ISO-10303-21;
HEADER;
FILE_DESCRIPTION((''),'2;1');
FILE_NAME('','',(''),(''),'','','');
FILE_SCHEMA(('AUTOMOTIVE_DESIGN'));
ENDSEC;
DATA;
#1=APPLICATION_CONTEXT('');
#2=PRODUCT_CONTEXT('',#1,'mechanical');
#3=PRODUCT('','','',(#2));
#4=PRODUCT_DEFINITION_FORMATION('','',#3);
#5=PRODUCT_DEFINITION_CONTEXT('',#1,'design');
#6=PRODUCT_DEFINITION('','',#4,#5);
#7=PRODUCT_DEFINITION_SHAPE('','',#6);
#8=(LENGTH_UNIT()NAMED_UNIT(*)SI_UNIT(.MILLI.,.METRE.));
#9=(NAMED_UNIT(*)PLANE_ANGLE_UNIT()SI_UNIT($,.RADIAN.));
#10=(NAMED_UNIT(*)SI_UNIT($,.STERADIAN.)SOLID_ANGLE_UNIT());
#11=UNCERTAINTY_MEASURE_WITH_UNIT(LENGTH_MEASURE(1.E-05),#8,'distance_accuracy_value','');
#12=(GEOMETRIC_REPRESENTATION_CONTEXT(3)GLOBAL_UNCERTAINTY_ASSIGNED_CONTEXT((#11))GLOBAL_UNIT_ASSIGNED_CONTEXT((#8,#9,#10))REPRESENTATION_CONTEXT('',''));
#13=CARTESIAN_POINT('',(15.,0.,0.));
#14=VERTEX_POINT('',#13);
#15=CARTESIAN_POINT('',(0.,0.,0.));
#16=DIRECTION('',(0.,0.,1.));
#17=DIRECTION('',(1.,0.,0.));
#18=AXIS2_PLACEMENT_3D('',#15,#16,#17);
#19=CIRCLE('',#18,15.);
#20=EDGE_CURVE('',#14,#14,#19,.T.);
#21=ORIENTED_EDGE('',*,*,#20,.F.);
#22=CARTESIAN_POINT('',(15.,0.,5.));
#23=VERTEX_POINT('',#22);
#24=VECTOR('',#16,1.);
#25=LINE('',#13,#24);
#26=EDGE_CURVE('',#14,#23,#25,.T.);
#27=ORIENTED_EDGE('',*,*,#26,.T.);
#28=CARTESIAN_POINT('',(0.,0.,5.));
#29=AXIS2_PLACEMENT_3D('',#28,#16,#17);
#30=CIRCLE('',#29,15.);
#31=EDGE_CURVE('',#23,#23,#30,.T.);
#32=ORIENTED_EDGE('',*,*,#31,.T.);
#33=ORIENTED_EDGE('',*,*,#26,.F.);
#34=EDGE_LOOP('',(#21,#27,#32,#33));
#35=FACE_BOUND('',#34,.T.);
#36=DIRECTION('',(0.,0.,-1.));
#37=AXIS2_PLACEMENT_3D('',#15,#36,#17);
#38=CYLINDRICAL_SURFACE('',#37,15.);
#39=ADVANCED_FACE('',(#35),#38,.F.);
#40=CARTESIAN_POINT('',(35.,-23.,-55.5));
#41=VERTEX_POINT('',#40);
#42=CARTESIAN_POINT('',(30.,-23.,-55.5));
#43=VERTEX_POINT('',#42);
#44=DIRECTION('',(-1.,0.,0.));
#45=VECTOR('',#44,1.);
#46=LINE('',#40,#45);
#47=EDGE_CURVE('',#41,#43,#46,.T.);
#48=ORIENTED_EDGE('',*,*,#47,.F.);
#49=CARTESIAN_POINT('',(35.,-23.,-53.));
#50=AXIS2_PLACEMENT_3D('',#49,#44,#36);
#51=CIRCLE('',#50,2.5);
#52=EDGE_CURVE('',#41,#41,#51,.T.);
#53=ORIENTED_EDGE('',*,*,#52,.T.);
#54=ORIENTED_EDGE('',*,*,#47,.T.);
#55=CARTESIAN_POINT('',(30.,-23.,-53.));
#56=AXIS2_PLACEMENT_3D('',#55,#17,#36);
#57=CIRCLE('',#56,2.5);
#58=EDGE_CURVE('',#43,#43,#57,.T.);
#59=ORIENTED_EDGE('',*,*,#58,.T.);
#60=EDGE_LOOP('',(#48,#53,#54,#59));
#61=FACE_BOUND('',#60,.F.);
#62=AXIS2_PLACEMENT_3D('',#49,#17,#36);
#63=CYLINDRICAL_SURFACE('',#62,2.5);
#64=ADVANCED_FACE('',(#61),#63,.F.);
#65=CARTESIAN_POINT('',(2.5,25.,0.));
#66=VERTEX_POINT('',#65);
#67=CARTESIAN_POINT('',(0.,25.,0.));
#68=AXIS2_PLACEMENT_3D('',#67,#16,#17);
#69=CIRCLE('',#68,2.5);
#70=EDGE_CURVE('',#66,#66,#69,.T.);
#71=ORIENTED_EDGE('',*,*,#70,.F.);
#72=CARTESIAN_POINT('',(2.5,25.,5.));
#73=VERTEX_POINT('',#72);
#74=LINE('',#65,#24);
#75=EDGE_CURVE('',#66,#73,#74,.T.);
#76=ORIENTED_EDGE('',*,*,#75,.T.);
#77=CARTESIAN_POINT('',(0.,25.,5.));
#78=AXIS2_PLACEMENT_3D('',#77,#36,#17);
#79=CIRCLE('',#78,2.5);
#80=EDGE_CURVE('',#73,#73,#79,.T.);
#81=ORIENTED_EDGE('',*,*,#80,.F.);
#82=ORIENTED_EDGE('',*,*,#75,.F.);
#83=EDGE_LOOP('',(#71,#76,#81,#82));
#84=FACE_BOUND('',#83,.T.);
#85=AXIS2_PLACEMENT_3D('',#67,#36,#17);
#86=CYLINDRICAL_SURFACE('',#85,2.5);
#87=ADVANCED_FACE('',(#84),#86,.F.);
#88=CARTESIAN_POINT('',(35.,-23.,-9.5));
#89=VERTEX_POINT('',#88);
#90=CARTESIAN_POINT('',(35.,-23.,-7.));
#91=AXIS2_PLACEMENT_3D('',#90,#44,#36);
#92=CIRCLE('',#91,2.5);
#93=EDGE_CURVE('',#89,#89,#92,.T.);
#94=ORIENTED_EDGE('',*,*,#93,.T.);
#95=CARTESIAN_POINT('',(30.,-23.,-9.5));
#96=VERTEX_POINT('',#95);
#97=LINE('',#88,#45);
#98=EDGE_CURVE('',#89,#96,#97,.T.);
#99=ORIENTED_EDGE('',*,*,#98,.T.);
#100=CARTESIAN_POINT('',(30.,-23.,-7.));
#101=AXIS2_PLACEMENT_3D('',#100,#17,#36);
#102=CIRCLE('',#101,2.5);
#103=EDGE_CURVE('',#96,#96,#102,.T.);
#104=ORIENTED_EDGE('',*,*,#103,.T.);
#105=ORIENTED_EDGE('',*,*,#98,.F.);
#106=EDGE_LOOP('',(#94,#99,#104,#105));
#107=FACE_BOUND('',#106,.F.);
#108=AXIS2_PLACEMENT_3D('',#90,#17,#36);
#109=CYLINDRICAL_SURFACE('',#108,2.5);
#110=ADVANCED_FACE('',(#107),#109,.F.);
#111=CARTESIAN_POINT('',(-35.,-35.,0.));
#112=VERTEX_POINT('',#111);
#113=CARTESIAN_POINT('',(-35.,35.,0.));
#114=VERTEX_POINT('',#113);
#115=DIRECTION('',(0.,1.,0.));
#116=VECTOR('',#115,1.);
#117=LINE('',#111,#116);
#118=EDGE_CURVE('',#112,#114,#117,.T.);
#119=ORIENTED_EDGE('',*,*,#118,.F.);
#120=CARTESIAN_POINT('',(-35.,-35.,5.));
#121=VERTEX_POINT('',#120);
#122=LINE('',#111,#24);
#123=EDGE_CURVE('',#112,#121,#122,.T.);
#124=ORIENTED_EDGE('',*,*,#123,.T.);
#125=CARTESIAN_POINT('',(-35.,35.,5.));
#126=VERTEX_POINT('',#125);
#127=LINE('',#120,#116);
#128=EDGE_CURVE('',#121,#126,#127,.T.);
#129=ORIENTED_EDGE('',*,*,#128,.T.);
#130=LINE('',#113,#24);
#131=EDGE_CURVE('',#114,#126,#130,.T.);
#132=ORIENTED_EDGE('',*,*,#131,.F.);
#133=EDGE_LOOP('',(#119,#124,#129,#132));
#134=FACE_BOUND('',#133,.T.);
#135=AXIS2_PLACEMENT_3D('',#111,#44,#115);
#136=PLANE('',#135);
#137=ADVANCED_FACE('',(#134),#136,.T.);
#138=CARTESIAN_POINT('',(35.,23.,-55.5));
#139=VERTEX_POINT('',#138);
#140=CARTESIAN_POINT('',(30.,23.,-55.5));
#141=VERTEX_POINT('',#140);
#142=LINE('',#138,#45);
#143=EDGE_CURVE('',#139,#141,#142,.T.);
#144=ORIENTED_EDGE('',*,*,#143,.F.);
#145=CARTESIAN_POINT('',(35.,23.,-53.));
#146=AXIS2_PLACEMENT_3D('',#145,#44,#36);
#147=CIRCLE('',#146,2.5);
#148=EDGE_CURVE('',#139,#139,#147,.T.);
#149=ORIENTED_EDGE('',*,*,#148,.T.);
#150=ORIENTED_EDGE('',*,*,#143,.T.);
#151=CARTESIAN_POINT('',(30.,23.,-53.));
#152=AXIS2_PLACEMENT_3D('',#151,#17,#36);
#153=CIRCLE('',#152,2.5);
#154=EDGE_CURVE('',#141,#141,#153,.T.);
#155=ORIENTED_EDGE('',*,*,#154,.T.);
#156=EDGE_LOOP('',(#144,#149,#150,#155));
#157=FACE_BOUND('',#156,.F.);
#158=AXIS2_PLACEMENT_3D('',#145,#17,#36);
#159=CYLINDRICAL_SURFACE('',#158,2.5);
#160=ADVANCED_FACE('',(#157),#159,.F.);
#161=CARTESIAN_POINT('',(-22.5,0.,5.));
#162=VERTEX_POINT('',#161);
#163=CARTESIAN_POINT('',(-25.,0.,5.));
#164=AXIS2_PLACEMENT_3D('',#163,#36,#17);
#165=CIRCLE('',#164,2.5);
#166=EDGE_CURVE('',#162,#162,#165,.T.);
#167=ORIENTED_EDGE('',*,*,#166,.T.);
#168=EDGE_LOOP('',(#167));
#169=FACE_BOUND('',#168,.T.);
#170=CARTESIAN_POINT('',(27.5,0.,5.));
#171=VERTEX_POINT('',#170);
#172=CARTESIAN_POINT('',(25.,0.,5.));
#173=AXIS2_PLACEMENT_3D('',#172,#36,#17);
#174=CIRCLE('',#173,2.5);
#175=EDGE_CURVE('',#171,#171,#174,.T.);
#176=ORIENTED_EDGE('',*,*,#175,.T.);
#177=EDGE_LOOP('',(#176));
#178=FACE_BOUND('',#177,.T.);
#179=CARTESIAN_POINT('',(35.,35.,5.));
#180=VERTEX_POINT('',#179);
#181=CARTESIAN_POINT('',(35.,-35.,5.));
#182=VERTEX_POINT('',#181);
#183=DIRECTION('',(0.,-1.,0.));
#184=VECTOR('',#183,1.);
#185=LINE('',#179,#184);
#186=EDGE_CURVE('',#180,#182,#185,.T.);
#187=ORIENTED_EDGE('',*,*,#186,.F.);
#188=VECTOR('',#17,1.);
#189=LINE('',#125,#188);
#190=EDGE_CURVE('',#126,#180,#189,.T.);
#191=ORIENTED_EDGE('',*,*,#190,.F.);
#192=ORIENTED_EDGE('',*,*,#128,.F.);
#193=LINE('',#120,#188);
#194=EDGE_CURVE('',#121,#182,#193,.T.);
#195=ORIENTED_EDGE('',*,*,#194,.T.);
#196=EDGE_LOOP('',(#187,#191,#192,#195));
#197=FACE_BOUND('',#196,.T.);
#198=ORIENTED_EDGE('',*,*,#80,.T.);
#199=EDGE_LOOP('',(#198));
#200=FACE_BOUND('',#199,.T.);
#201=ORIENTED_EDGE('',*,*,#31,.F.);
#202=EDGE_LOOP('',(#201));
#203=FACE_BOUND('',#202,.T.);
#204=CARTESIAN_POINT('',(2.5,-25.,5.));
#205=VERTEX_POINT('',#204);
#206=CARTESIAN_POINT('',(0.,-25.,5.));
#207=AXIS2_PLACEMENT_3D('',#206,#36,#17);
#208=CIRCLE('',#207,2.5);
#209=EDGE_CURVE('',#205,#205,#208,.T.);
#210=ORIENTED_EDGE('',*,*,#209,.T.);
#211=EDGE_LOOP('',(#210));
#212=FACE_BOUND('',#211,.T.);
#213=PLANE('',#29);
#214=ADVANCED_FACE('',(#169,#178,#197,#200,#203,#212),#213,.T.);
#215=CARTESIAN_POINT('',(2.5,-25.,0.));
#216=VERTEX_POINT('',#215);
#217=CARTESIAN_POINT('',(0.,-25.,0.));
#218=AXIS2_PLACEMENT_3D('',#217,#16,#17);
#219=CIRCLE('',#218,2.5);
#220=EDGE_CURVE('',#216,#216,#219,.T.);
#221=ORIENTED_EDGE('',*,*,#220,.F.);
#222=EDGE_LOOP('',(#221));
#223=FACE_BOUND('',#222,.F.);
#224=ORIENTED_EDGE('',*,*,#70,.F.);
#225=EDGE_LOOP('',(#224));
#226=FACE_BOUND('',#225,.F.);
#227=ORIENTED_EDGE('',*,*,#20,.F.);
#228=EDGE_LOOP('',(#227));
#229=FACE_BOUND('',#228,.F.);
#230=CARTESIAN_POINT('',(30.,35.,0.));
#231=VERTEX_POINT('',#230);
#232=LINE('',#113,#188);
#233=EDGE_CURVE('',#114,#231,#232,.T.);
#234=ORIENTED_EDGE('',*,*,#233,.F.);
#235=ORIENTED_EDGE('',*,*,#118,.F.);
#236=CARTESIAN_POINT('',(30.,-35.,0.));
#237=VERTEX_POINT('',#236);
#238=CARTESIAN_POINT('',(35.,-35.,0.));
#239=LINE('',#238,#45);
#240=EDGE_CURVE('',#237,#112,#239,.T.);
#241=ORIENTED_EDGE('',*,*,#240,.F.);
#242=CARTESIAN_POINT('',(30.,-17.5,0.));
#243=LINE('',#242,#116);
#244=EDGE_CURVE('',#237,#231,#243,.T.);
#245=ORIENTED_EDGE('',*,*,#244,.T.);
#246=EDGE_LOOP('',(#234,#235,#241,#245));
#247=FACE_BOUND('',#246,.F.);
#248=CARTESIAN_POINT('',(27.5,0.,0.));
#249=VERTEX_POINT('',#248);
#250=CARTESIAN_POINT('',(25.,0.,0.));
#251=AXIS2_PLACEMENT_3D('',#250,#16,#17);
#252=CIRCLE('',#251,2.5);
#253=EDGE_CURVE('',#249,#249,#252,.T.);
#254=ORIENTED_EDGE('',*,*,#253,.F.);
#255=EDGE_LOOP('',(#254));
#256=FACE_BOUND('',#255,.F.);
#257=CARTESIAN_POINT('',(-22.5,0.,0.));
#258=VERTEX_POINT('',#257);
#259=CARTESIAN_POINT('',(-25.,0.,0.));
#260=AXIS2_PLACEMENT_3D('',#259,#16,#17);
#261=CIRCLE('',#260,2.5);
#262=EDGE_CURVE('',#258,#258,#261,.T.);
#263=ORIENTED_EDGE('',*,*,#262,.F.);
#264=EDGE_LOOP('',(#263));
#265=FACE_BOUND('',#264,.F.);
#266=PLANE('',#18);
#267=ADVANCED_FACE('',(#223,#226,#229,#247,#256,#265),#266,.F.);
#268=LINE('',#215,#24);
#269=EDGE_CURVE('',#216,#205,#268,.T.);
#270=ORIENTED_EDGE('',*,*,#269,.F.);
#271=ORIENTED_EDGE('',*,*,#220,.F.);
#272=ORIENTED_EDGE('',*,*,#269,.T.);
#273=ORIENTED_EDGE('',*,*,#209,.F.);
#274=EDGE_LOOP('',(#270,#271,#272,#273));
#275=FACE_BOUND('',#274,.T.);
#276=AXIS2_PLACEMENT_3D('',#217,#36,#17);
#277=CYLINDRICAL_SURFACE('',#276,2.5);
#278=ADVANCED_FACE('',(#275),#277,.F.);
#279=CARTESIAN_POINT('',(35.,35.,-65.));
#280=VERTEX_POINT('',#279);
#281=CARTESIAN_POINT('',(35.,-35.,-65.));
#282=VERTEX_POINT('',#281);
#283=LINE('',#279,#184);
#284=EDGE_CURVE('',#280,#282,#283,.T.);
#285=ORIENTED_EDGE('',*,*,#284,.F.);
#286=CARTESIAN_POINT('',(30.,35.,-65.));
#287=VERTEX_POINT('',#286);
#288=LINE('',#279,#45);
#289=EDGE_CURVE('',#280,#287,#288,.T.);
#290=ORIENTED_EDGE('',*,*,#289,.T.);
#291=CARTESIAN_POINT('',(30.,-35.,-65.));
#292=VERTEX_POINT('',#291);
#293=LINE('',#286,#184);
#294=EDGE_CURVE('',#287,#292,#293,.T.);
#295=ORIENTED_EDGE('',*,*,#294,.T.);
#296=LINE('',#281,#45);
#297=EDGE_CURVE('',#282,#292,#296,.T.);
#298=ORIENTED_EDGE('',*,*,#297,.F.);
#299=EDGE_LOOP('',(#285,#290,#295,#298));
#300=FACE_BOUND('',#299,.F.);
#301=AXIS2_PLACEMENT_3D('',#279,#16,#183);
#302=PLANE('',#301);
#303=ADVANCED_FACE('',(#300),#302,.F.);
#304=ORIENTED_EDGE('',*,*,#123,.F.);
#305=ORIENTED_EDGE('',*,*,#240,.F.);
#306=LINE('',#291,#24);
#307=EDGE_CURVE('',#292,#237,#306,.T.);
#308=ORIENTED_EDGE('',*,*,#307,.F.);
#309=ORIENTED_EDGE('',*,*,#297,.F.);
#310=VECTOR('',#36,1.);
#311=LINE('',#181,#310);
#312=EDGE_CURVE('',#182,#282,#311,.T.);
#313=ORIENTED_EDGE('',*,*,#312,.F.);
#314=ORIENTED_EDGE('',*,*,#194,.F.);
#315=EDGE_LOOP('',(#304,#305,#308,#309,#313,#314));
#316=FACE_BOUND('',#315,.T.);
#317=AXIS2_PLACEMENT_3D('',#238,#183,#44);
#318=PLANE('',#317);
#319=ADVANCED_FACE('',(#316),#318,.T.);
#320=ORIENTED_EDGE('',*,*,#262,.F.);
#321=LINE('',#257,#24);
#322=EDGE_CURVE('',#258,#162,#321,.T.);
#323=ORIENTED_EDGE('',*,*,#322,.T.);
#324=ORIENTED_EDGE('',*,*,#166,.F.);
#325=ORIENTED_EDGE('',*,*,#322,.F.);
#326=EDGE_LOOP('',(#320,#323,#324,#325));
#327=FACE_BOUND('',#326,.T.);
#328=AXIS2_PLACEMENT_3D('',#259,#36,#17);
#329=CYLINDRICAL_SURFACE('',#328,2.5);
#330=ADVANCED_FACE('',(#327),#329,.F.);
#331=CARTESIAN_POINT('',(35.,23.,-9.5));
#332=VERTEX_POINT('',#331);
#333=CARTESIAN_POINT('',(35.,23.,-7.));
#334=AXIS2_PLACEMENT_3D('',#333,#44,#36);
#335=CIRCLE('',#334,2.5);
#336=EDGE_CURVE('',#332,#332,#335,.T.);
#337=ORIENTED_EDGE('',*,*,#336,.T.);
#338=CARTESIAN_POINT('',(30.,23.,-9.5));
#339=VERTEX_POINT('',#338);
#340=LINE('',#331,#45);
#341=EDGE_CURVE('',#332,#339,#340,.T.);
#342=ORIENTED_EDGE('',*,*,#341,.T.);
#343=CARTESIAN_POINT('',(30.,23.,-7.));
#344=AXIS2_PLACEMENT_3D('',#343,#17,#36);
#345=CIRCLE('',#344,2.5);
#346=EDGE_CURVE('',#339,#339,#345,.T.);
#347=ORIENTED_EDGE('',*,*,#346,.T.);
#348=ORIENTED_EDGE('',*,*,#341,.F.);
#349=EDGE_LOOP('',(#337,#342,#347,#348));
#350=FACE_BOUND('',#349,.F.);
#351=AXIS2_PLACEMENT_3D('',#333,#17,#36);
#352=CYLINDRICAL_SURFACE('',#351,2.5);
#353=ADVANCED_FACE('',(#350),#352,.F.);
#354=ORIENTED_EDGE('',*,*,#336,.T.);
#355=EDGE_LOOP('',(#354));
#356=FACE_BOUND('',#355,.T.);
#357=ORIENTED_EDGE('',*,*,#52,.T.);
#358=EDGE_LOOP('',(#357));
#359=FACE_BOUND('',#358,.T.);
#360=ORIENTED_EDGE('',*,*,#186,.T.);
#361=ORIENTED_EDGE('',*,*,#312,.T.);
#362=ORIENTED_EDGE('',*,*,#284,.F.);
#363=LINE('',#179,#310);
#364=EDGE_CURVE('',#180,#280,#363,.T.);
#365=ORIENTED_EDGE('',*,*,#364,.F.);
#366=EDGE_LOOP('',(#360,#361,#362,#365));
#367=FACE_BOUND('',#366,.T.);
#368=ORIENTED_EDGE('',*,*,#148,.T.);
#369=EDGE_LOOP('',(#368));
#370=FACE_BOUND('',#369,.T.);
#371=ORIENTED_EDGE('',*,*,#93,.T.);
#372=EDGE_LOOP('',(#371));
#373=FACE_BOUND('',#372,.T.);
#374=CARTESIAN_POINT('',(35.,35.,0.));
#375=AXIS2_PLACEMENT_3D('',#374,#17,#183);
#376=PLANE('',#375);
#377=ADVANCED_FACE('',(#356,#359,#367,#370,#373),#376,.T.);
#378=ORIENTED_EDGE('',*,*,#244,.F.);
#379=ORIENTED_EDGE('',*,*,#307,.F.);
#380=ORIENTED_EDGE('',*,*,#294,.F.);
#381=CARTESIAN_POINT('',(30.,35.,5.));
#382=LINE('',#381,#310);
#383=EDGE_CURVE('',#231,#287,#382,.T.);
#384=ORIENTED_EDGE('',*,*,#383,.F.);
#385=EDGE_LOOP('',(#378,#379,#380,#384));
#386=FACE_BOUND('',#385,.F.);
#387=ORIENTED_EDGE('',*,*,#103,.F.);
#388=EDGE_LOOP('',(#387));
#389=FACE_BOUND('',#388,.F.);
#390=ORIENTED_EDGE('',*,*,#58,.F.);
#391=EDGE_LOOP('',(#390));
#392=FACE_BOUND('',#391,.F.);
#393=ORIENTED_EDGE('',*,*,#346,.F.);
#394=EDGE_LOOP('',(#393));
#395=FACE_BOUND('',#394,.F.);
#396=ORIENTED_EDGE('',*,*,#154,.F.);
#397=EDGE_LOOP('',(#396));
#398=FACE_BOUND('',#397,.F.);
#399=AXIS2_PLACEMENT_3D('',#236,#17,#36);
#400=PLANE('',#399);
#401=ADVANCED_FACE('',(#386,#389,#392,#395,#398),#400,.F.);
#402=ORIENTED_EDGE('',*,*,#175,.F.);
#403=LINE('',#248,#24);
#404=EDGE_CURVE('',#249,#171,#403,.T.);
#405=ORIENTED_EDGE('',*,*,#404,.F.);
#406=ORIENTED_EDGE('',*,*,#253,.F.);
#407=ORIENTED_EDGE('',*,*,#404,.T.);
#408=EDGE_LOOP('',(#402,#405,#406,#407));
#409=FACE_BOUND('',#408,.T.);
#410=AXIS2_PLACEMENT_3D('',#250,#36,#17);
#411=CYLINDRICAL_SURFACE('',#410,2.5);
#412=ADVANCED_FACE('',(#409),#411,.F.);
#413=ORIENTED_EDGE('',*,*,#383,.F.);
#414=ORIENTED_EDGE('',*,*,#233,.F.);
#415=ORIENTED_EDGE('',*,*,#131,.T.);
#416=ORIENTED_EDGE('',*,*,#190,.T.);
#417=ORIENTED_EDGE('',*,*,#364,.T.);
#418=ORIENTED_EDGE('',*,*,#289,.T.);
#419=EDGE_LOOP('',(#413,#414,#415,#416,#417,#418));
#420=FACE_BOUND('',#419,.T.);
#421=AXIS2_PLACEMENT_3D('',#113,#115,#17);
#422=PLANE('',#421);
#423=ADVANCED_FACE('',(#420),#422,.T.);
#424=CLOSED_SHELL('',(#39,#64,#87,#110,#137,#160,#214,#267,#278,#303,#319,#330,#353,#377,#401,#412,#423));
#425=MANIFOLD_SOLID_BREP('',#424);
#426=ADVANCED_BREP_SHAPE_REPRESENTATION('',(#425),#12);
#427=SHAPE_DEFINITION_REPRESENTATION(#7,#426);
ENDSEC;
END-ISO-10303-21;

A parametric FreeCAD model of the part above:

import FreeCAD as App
import Part
import Sketcher

V = App.Vector


def add_polygon(sketch, points):
    """Adds a closed chain of lines whose ends are joined by coincident constraints."""
    first, n = sketch.GeometryCount, len(points)
    for a, b in zip(points, points[1:] + points[:1]):
        sketch.addGeometry(Part.LineSegment(App.Vector(*a, 0), App.Vector(*b, 0)), False)
    for i in range(n):
        sketch.addConstraint(Sketcher.Constraint("Coincident", first + i, 2, first + (i + 1) % n, 1))

doc = App.newDocument("Part")
body = doc.addObject("PartDesign::Body", "Body")

# Sketch on XY plane
sketch1 = body.newObject("Sketcher::SketchObject", "Sketch")
sketch1.AttachmentSupport = (doc.getObject("XY_Plane"), [""])
sketch1.MapMode = "FlatFace"
add_polygon(sketch1, [(35, 35), (-35, 35), (-35, -35), (35, -35)])  # lines 0-3
sketch1.addGeometry(Part.Circle(V(0, 25, 0), V(0, 0, 1), 2.5), False)  # 4
sketch1.addGeometry(Part.Circle(V(-25, 0, 0), V(0, 0, 1), 2.5), False)  # 5
sketch1.addGeometry(Part.Circle(V(0, -25, 0), V(0, 0, 1), 2.5), False)  # 6
sketch1.addGeometry(Part.Circle(V(25, 0, 0), V(0, 0, 1), 2.5), False)  # 7
sketch1.addGeometry(Part.Circle(V(0, 0, 0), V(0, 0, 1), 15), False)  # 8
sketch1.addConstraint([
    Sketcher.Constraint("Horizontal", 0),
    Sketcher.Constraint("Vertical", 1),
    Sketcher.Constraint("Horizontal", 2),
    Sketcher.Constraint("Vertical", 3),
    Sketcher.Constraint("Coincident", 8, 3, -1, 1),
    Sketcher.Constraint("Equal", 4, 5),
    Sketcher.Constraint("Equal", 5, 6),
    Sketcher.Constraint("Equal", 6, 7),
    Sketcher.Constraint("Symmetric", 4, 3, 6, 3, -1, 1),
    Sketcher.Constraint("Symmetric", 5, 3, 7, 3, -1, 1),
    Sketcher.Constraint("Symmetric", 0, 2, 2, 2, -1, 1),
    Sketcher.Constraint("PointOnObject", 4, 3, -2),
    Sketcher.Constraint("PointOnObject", 5, 3, -1),
    Sketcher.Constraint("Equal", 2, 1),
    Sketcher.Constraint("Diameter", 4, 5.0),
    Sketcher.Constraint("Diameter", 8, 30.0),
    Sketcher.Constraint("DistanceX", 0, 2, 0, 1, 70.0),
    Sketcher.Constraint("DistanceY", 6, 3, 4, 3, 50.0),
    Sketcher.Constraint("DistanceX", 5, 3, 7, 3, 50.0),
])
pad1 = body.newObject("PartDesign::Pad", "Pad")
pad1.Profile = sketch1
pad1.Length = 5

# Sketch on YZ plane
sketch2 = body.newObject("Sketcher::SketchObject", "Sketch001")
sketch2.AttachmentSupport = (doc.getObject("YZ_Plane"), [""])
sketch2.MapMode = "FlatFace"
sketch2.AttachmentOffset = App.Placement(V(0, 0, 35), App.Rotation())
add_polygon(sketch2, [(35, 5), (-35, 5), (-35, -65), (35, -65)])  # lines 0-3
sketch2.addConstraint([
    Sketcher.Constraint("Horizontal", 0),
    Sketcher.Constraint("Vertical", 1),
    Sketcher.Constraint("Horizontal", 2),
    Sketcher.Constraint("Vertical", 3),
    Sketcher.Constraint("Equal", 2, 1),
    Sketcher.Constraint("DistanceX", 0, 2, 0, 1, 70.0),
    Sketcher.Constraint("DistanceX", 0, 2, -1, 1, 35.0),
    Sketcher.Constraint("DistanceY", -1, 1, 0, 2, 5.0),
])
pad2 = body.newObject("PartDesign::Pad", "Pad001")
pad2.Profile = sketch2
pad2.Length = 5
pad2.Reversed = True

# Sketch on YZ plane
sketch3 = body.newObject("Sketcher::SketchObject", "Sketch002")
sketch3.AttachmentSupport = (doc.getObject("YZ_Plane"), [""])
sketch3.MapMode = "FlatFace"
sketch3.AttachmentOffset = App.Placement(V(0, 0, 35), App.Rotation())
sketch3.addGeometry([
    Part.Circle(V(23, -7, 0), V(0, 0, 1), 2.5),
    Part.Circle(V(23, -53, 0), V(0, 0, 1), 2.5),
    Part.Circle(V(-23, -7, 0), V(0, 0, 1), 2.5),
    Part.Circle(V(-23, -53, 0), V(0, 0, 1), 2.5),
], False)
sketch3.addConstraint([
    Sketcher.Constraint("Equal", 0, 1),
    Sketcher.Constraint("Equal", 1, 2),
    Sketcher.Constraint("Equal", 2, 3),
    Sketcher.Constraint("Symmetric", 0, 3, 2, 3, -2),
    Sketcher.Constraint("Symmetric", 1, 3, 3, 3, -2),
    Sketcher.Constraint("Vertical", 0, 3, 1, 3),
    Sketcher.Constraint("Diameter", 0, 5.0),
    Sketcher.Constraint("DistanceY", 1, 3, 0, 3, 46.0),
    Sketcher.Constraint("DistanceX", 2, 3, 0, 3, 46.0),
    Sketcher.Constraint("DistanceY", 0, 3, -1, 1, 7.0),
])
pocket1 = body.newObject("PartDesign::Pocket", "Pocket")
pocket1.Profile = sketch3
pocket1.Length = 5

doc.recompute()
